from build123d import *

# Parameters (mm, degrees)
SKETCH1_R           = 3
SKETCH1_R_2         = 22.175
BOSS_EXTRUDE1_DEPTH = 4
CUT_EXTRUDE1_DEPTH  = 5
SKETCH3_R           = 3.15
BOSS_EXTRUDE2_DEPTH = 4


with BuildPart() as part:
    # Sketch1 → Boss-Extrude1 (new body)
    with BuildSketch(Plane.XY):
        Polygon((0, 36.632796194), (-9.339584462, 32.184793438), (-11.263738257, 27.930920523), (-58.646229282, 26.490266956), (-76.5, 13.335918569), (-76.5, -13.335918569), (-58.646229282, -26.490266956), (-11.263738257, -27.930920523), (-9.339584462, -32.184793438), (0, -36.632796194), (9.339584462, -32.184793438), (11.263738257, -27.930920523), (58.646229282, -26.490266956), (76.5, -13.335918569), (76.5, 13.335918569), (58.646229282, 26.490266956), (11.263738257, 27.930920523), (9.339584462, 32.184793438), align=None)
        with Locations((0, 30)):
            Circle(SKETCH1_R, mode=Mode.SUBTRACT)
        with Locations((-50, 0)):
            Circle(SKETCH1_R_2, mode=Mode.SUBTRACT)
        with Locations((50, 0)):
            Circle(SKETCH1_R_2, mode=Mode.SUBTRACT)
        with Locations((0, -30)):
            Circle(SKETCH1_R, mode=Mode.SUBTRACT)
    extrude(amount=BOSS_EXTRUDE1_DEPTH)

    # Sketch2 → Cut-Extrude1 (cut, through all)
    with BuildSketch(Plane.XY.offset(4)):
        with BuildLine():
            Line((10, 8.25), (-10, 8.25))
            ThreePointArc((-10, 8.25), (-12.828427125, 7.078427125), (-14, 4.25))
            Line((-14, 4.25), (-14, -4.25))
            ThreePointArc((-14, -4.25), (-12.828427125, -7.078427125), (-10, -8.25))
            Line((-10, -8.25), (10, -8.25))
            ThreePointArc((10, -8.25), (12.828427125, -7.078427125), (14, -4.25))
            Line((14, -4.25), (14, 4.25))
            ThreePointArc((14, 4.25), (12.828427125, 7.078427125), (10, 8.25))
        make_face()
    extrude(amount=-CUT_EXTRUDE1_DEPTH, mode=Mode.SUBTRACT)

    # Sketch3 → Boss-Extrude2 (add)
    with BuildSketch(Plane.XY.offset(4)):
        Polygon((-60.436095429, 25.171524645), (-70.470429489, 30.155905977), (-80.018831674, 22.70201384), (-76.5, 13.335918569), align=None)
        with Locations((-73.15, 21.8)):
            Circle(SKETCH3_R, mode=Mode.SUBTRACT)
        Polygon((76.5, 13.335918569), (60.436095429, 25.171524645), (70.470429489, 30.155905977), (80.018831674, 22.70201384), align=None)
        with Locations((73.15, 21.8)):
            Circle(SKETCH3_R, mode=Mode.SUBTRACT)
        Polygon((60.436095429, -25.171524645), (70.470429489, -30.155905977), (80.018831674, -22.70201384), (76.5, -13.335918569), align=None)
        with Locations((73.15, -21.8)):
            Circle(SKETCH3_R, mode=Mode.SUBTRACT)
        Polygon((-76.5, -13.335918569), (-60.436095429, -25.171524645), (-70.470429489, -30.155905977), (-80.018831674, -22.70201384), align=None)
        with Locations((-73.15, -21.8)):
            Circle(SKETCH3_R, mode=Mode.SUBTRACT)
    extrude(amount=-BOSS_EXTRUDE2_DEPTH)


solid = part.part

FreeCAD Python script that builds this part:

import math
import FreeCAD as App
import Part
import Sketcher
Q = App.Units.Quantity

doc = App.newDocument("Part")
body = doc.addObject("PartDesign::Body", "Body")

sketch1 = body.newObject("Sketcher::SketchObject", "Sketch")
sketch1.AttachmentSupport = (doc.getObject("XY_Plane"), [""])
sketch1.MapMode = "FlatFace"
sketch1.addGeometry(Part.LineSegment(App.Vector(0, 36.632796, 0), App.Vector(-9.339584, 32.184793, 0)), False)
sketch1.addGeometry(Part.LineSegment(App.Vector(-9.339584, 32.184793, 0), App.Vector(-11.263738, 27.930921, 0)), False)
sketch1.addGeometry(Part.LineSegment(App.Vector(-11.263738, 27.930921, 0), App.Vector(-58.646229, 26.490267, 0)), False)
sketch1.addGeometry(Part.LineSegment(App.Vector(-58.646229, 26.490267, 0), App.Vector(-76.5, 13.335919, 0)), False)
sketch1.addGeometry(Part.LineSegment(App.Vector(-76.5, 13.335919, 0), App.Vector(-76.5, -13.335919, 0)), False)
sketch1.addGeometry(Part.LineSegment(App.Vector(-76.5, -13.335919, 0), App.Vector(-58.646229, -26.490267, 0)), False)
sketch1.addGeometry(Part.LineSegment(App.Vector(-58.646229, -26.490267, 0), App.Vector(-11.263738, -27.930921, 0)), False)
sketch1.addGeometry(Part.LineSegment(App.Vector(-11.263738, -27.930921, 0), App.Vector(-9.339584, -32.184793, 0)), False)
sketch1.addGeometry(Part.LineSegment(App.Vector(-9.339584, -32.184793, 0), App.Vector(0, -36.632796, 0)), False)
sketch1.addGeometry(Part.LineSegment(App.Vector(0, -36.632796, 0), App.Vector(9.339584, -32.184793, 0)), False)
sketch1.addGeometry(Part.LineSegment(App.Vector(9.339584, -32.184793, 0), App.Vector(11.263738, -27.930921, 0)), False)
sketch1.addGeometry(Part.LineSegment(App.Vector(11.263738, -27.930921, 0), App.Vector(58.646229, -26.490267, 0)), False)
sketch1.addGeometry(Part.LineSegment(App.Vector(58.646229, -26.490267, 0), App.Vector(76.5, -13.335919, 0)), False)
sketch1.addGeometry(Part.LineSegment(App.Vector(76.5, -13.335919, 0), App.Vector(76.5, 13.335919, 0)), False)
sketch1.addGeometry(Part.LineSegment(App.Vector(76.5, 13.335919, 0), App.Vector(58.646229, 26.490267, 0)), False)
sketch1.addGeometry(Part.LineSegment(App.Vector(58.646229, 26.490267, 0), App.Vector(11.263738, 27.930921, 0)), False)
sketch1.addGeometry(Part.LineSegment(App.Vector(11.263738, 27.930921, 0), App.Vector(9.339584, 32.184793, 0)), False)
sketch1.addGeometry(Part.LineSegment(App.Vector(9.339584, 32.184793, 0), App.Vector(0, 36.632796, 0)), False)
sketch1.addGeometry(Part.Circle(App.Vector(0, -30, 0), App.Vector(0, 0, 1), 3), False)
sketch1.addGeometry(Part.Circle(App.Vector(-50, 0, 0), App.Vector(0, 0, 1), 22.175), False)
sketch1.addGeometry(Part.Circle(App.Vector(50, 0, 0), App.Vector(0, 0, 1), 22.175), False)
sketch1.addGeometry(Part.Circle(App.Vector(0, 30, 0), App.Vector(0, 0, 1), 3), False)
sketch1.addConstraint(Sketcher.Constraint("Coincident", 0, 2, 1, 1))
sketch1.addConstraint(Sketcher.Constraint("Coincident", 1, 2, 2, 1))
sketch1.addConstraint(Sketcher.Constraint("Coincident", 2, 2, 3, 1))
sketch1.addConstraint(Sketcher.Constraint("Coincident", 3, 2, 4, 1))
sketch1.addConstraint(Sketcher.Constraint("Coincident", 4, 2, 5, 1))
sketch1.addConstraint(Sketcher.Constraint("Coincident", 5, 2, 6, 1))
sketch1.addConstraint(Sketcher.Constraint("Coincident", 6, 2, 7, 1))
sketch1.addConstraint(Sketcher.Constraint("Coincident", 7, 2, 8, 1))
sketch1.addConstraint(Sketcher.Constraint("Coincident", 8, 2, 9, 1))
sketch1.addConstraint(Sketcher.Constraint("Coincident", 9, 2, 10, 1))
sketch1.addConstraint(Sketcher.Constraint("Coincident", 10, 2, 11, 1))
sketch1.addConstraint(Sketcher.Constraint("Coincident", 11, 2, 12, 1))
sketch1.addConstraint(Sketcher.Constraint("Coincident", 12, 2, 13, 1))
sketch1.addConstraint(Sketcher.Constraint("Coincident", 13, 2, 14, 1))
sketch1.addConstraint(Sketcher.Constraint("Coincident", 14, 2, 15, 1))
sketch1.addConstraint(Sketcher.Constraint("Coincident", 15, 2, 16, 1))
sketch1.addConstraint(Sketcher.Constraint("Coincident", 16, 2, 17, 1))
sketch1.addConstraint(Sketcher.Constraint("Coincident", 17, 2, 0, 1))
sketch1.addConstraint(Sketcher.Constraint("Vertical", 4))
sketch1.addConstraint(Sketcher.Constraint("Vertical", 13))
sketch1.addConstraint(Sketcher.Constraint("Equal", 19, 20))
sketch1.addConstraint(Sketcher.Constraint("Equal", 18, 21))
sketch1.addConstraint(Sketcher.Constraint("Symmetric", 19, 3, 20, 3, -1, 1))
sketch1.addConstraint(Sketcher.Constraint("Symmetric", 18, 3, 21, 3, -1, 1))
sketch1.addConstraint(Sketcher.Constraint("Symmetric", 0, 2, 9, 2, -1, 1))
sketch1.addConstraint(Sketcher.Constraint("Symmetric", 1, 2, 10, 2, -1, 1))
sketch1.addConstraint(Sketcher.Constraint("Symmetric", 2, 2, 11, 2, -1, 1))
sketch1.addConstraint(Sketcher.Constraint("Symmetric", 3, 2, 12, 2, -1, 1))
sketch1.addConstraint(Sketcher.Constraint("Symmetric", 5, 2, 14, 2, -1, 1))
sketch1.addConstraint(Sketcher.Constraint("Symmetric", 6, 2, 15, 2, -1, 1))
sketch1.addConstraint(Sketcher.Constraint("Symmetric", 7, 2, 16, 2, -1, 1))
sketch1.addConstraint(Sketcher.Constraint("Symmetric", 8, 2, 17, 2, -1, 1))
sketch1.addConstraint(Sketcher.Constraint("Symmetric", 7, 2, 9, 2, -2))
sketch1.addConstraint(Sketcher.Constraint("Symmetric", 6, 2, 10, 2, -2))
sketch1.addConstraint(Sketcher.Constraint("Symmetric", 5, 2, 11, 2, -2))
sketch1.addConstraint(Sketcher.Constraint("PointOnObject", 18, 3, -2))
sketch1.addConstraint(Sketcher.Constraint("PointOnObject", 19, 3, -1))
sketch1.addConstraint(Sketcher.Constraint("PointOnObject", 8, 2, -2))
sketch1.addConstraint(Sketcher.Constraint("Parallel", 5, 14))
sketch1.addConstraint(Sketcher.Constraint("Horizontal", 4, 2, 12, 2))
sketch1.addConstraint(Sketcher.Constraint("Diameter", 18, Q("6 mm")))
sketch1.addConstraint(Sketcher.Constraint("Diameter", 19, Q("44.35 mm")))
sketch1.addConstraint(Sketcher.Constraint("DistanceY", 18, 3, -1, 1, Q("30 mm")))
sketch1.addConstraint(Sketcher.Constraint("DistanceX", 19, 3, -1, 1, Q("50 mm")))
sketch1.addConstraint(Sketcher.Constraint("DistanceX", 3, 2, -1, 1, Q("76.5 mm")))
sketch1.addConstraint(Sketcher.Constraint("DistanceY", 3, 2, 1, 2, Q("14.595002 mm")))
sketch1.addConstraint(Sketcher.Constraint("Distance", 1, Q("4.668812 mm")))
sketch1.addConstraint(Sketcher.Constraint("Distance", 3, Q("22.176429 mm")))
sketch1.addConstraint(Sketcher.Constraint("DistanceY", 4, 2, 4, 1, Q("26.671837 mm")))
sketch1.addConstraint(Sketcher.Constraint("DistanceX", 1, 2, -1, 1, Q("11.263738 mm")))
sketch1.addConstraint(Sketcher.Constraint("DistanceX", 2, 2, -1, 1, Q("58.646229 mm")))
sketch1.addConstraint(Sketcher.Constraint("DistanceY", 8, 2, 5, 2, Q("10.142529 mm")))
sketch1.addConstraint(Sketcher.Constraint("DistanceX", 7, 2, 9, 2, Q("18.679169 mm")))
pad1 = body.newObject("PartDesign::Pad", "Pad")
pad1.Profile = sketch1
pad1.Length = 4

sketch2 = body.newObject("Sketcher::SketchObject", "Sketch001")
sketch2.AttachmentSupport = (doc.getObject("XY_Plane"), [""])
sketch2.MapMode = "FlatFace"
sketch2.AttachmentOffset = App.Placement(App.Vector(0, 0, 4), App.Rotation())
sketch2.addGeometry(Part.LineSegment(App.Vector(10, 8.25, 0), App.Vector(-10, 8.25, 0)), False)
sketch2.addGeometry(Part.ArcOfCircle(Part.Circle(App.Vector(-10, 4.25, 0), App.Vector(0, 0, 1), 4), math.radians(90), math.radians(180)), False)
sketch2.addGeometry(Part.LineSegment(App.Vector(-14, 4.25, 0), App.Vector(-14, -4.25, 0)), False)
sketch2.addGeometry(Part.ArcOfCircle(Part.Circle(App.Vector(-10, -4.25, 0), App.Vector(0, 0, 1), 4), math.radians(180), math.radians(270)), False)
sketch2.addGeometry(Part.LineSegment(App.Vector(-10, -8.25, 0), App.Vector(10, -8.25, 0)), False)
sketch2.addGeometry(Part.ArcOfCircle(Part.Circle(App.Vector(10, -4.25, 0), App.Vector(0, 0, 1), 4), math.radians(-90), math.radians(0)), False)
sketch2.addGeometry(Part.LineSegment(App.Vector(14, -4.25, 0), App.Vector(14, 4.25, 0)), False)
sketch2.addGeometry(Part.ArcOfCircle(Part.Circle(App.Vector(10, 4.25, 0), App.Vector(0, 0, 1), 4), math.radians(0), math.radians(90)), False)
sketch2.addConstraint(Sketcher.Constraint("Tangent", 0, 2, 1, 1))
sketch2.addConstraint(Sketcher.Constraint("Tangent", 1, 2, 2, 1))
sketch2.addConstraint(Sketcher.Constraint("Tangent", 2, 2, 3, 1))
sketch2.addConstraint(Sketcher.Constraint("Tangent", 3, 2, 4, 1))
sketch2.addConstraint(Sketcher.Constraint("Tangent", 4, 2, 5, 1))
sketch2.addConstraint(Sketcher.Constraint("Tangent", 5, 2, 6, 1))
sketch2.addConstraint(Sketcher.Constraint("Tangent", 6, 2, 7, 1))
sketch2.addConstraint(Sketcher.Constraint("Tangent", 7, 2, 0, 1))
sketch2.addConstraint(Sketcher.Constraint("Horizontal", 0))
sketch2.addConstraint(Sketcher.Constraint("Vertical", 2))
sketch2.addConstraint(Sketcher.Constraint("Horizontal", 4))
sketch2.addConstraint(Sketcher.Constraint("Vertical", 6))
sketch2.addConstraint(Sketcher.Constraint("Equal", 1, 3))
sketch2.addConstraint(Sketcher.Constraint("Equal", 3, 5))
sketch2.addConstraint(Sketcher.Constraint("Equal", 5, 7))
sketch2.addConstraint(Sketcher.Constraint("Symmetric", 1, 3, 5, 3, -1, 1))
sketch2.addConstraint(Sketcher.Constraint("Radius", 1, Q("4 mm")))
sketch2.addConstraint(Sketcher.Constraint("DistanceX", 0, 2, 0, 1, Q("20 mm")))
sketch2.addConstraint(Sketcher.Constraint("DistanceY", 2, 2, 2, 1, Q("8.5 mm")))
pocket1 = body.newObject("PartDesign::Pocket", "Pocket")
pocket1.Profile = sketch2
pocket1.Type = "ThroughAll"

sketch3 = body.newObject("Sketcher::SketchObject", "Sketch002")
sketch3.AttachmentSupport = (doc.getObject("XY_Plane"), [""])
sketch3.MapMode = "FlatFace"
sketch3.AttachmentOffset = App.Placement(App.Vector(0, 0, 4), App.Rotation())
sketch3.addGeometry(Part.LineSegment(App.Vector(-60.436095, 25.171525, 0), App.Vector(-70.470429, 30.155906, 0)), False)
sketch3.addGeometry(Part.LineSegment(App.Vector(-70.470429, 30.155906, 0), App.Vector(-80.018832, 22.702014, 0)), False)
sketch3.addGeometry(Part.LineSegment(App.Vector(-80.018832, 22.702014, 0), App.Vector(-76.5, 13.335919, 0)), False)
sketch3.addGeometry(Part.LineSegment(App.Vector(-76.5, 13.335919, 0), App.Vector(-60.436095, 25.171525, 0)), False)
sketch3.addGeometry(Part.Circle(App.Vector(-73.15, 21.8, 0), App.Vector(0, 0, 1), 3.15), False)
sketch3.addGeometry(Part.LineSegment(App.Vector(60.436095, 25.171525, 0), App.Vector(76.5, 13.335919, 0)), False)
sketch3.addGeometry(Part.LineSegment(App.Vector(76.5, 13.335919, 0), App.Vector(80.018832, 22.702014, 0)), False)
sketch3.addGeometry(Part.LineSegment(App.Vector(80.018832, 22.702014, 0), App.Vector(70.470429, 30.155906, 0)), False)
sketch3.addGeometry(Part.LineSegment(App.Vector(70.470429, 30.155906, 0), App.Vector(60.436095, 25.171525, 0)), False)
sketch3.addGeometry(Part.Circle(App.Vector(73.15, 21.8, 0), App.Vector(0, 0, 1), 3.15), False)
sketch3.addGeometry(Part.LineSegment(App.Vector(60.436095, -25.171525, 0), App.Vector(70.470429, -30.155906, 0)), False)
sketch3.addGeometry(Part.LineSegment(App.Vector(70.470429, -30.155906, 0), App.Vector(80.018832, -22.702014, 0)), False)
sketch3.addGeometry(Part.LineSegment(App.Vector(80.018832, -22.702014, 0), App.Vector(76.5, -13.335919, 0)), False)
sketch3.addGeometry(Part.LineSegment(App.Vector(76.5, -13.335919, 0), App.Vector(60.436095, -25.171525, 0)), False)
sketch3.addGeometry(Part.Circle(App.Vector(73.15, -21.8, 0), App.Vector(0, 0, 1), 3.15), False)
sketch3.addGeometry(Part.LineSegment(App.Vector(-60.436095, -25.171525, 0), App.Vector(-76.5, -13.335919, 0)), False)
sketch3.addGeometry(Part.LineSegment(App.Vector(-76.5, -13.335919, 0), App.Vector(-80.018832, -22.702014, 0)), False)
sketch3.addGeometry(Part.LineSegment(App.Vector(-80.018832, -22.702014, 0), App.Vector(-70.470429, -30.155906, 0)), False)
sketch3.addGeometry(Part.LineSegment(App.Vector(-70.470429, -30.155906, 0), App.Vector(-60.436095, -25.171525, 0)), False)
sketch3.addGeometry(Part.Circle(App.Vector(-73.15, -21.8, 0), App.Vector(0, 0, 1), 3.15), False)
sketch3.addConstraint(Sketcher.Constraint("Coincident", 0, 2, 1, 1))
sketch3.addConstraint(Sketcher.Constraint("Coincident", 1, 2, 2, 1))
sketch3.addConstraint(Sketcher.Constraint("Coincident", 2, 2, 3, 1))
sketch3.addConstraint(Sketcher.Constraint("Coincident", 3, 2, 0, 1))
sketch3.addConstraint(Sketcher.Constraint("Coincident", 5, 2, 6, 1))
sketch3.addConstraint(Sketcher.Constraint("Coincident", 6, 2, 7, 1))
sketch3.addConstraint(Sketcher.Constraint("Coincident", 7, 2, 8, 1))
sketch3.addConstraint(Sketcher.Constraint("Coincident", 8, 2, 5, 1))
sketch3.addConstraint(Sketcher.Constraint("Coincident", 10, 2, 11, 1))
sketch3.addConstraint(Sketcher.Constraint("Coincident", 11, 2, 12, 1))
sketch3.addConstraint(Sketcher.Constraint("Coincident", 12, 2, 13, 1))
sketch3.addConstraint(Sketcher.Constraint("Coincident", 13, 2, 10, 1))
sketch3.addConstraint(Sketcher.Constraint("Coincident", 15, 2, 16, 1))
sketch3.addConstraint(Sketcher.Constraint("Coincident", 16, 2, 17, 1))
sketch3.addConstraint(Sketcher.Constraint("Coincident", 17, 2, 18, 1))
sketch3.addConstraint(Sketcher.Constraint("Coincident", 18, 2, 15, 1))
sketch3.addConstraint(Sketcher.Constraint("Equal", 4, 9))
sketch3.addConstraint(Sketcher.Constraint("Equal", 9, 14))
sketch3.addConstraint(Sketcher.Constraint("Equal", 14, 19))
sketch3.addConstraint(Sketcher.Constraint("Symmetric", 4, 3, 14, 3, -1, 1))
sketch3.addConstraint(Sketcher.Constraint("Symmetric", 9, 3, 19, 3, -1, 1))
sketch3.addConstraint(Sketcher.Constraint("Symmetric", 0, 2, 10, 2, -1, 1))
sketch3.addConstraint(Sketcher.Constraint("Symmetric", 1, 2, 11, 2, -1, 1))
sketch3.addConstraint(Sketcher.Constraint("Symmetric", 2, 2, 12, 2, -1, 1))
sketch3.addConstraint(Sketcher.Constraint("Symmetric", 3, 2, 13, 2, -1, 1))
sketch3.addConstraint(Sketcher.Constraint("Symmetric", 5, 2, 15, 2, -1, 1))
sketch3.addConstraint(Sketcher.Constraint("Symmetric", 6, 2, 16, 2, -1, 1))
sketch3.addConstraint(Sketcher.Constraint("Symmetric", 7, 2, 17, 2, -1, 1))
sketch3.addConstraint(Sketcher.Constraint("Symmetric", 8, 2, 18, 2, -1, 1))
sketch3.addConstraint(Sketcher.Constraint("Symmetric", 4, 3, 9, 3, -2))
sketch3.addConstraint(Sketcher.Constraint("Symmetric", 2, 2, 5, 2, -2))
sketch3.addConstraint(Sketcher.Constraint("Symmetric", 1, 2, 6, 2, -2))
sketch3.addConstraint(Sketcher.Constraint("Symmetric", 0, 2, 7, 2, -2))
sketch3.addConstraint(Sketcher.Constraint("Symmetric", 3, 2, 8, 2, -2))
sketch3.addConstraint(Sketcher.Constraint("Diameter", 4, Q("6.3 mm")))
sketch3.addConstraint(Sketcher.Constraint("DistanceY", -1, 1, 4, 3, Q("21.8 mm")))
sketch3.addConstraint(Sketcher.Constraint("DistanceX", 2, 2, -1, 1, Q("76.5 mm")))
sketch3.addConstraint(Sketcher.Constraint("DistanceX", 4, 3, 9, 3, Q("146.3 mm")))
sketch3.addConstraint(Sketcher.Constraint("Distance", 1, Q("12.113319 mm")))
sketch3.addConstraint(Sketcher.Constraint("Distance", 3, Q("19.95321 mm")))
sketch3.addConstraint(Sketcher.Constraint("DistanceX", 0, 2, -1, 1, Q("70.470429 mm")))
sketch3.addConstraint(Sketcher.Constraint("DistanceX", 1, 2, -1, 1, Q("80.018832 mm")))
sketch3.addConstraint(Sketcher.Constraint("DistanceY", -1, 1, 2, 2, Q("13.335919 mm")))
sketch3.addConstraint(Sketcher.Constraint("DistanceY", 3, 2, 0, 2, Q("4.984381 mm")))
sketch3.addConstraint(Sketcher.Constraint("DistanceY", 10, 2, 6, 2, Q("52.85792 mm")))
pad2 = body.newObject("PartDesign::Pad", "Pad001")
pad2.Profile = sketch3
pad2.Length = 4
pad2.Reversed = True

doc.recompute()
